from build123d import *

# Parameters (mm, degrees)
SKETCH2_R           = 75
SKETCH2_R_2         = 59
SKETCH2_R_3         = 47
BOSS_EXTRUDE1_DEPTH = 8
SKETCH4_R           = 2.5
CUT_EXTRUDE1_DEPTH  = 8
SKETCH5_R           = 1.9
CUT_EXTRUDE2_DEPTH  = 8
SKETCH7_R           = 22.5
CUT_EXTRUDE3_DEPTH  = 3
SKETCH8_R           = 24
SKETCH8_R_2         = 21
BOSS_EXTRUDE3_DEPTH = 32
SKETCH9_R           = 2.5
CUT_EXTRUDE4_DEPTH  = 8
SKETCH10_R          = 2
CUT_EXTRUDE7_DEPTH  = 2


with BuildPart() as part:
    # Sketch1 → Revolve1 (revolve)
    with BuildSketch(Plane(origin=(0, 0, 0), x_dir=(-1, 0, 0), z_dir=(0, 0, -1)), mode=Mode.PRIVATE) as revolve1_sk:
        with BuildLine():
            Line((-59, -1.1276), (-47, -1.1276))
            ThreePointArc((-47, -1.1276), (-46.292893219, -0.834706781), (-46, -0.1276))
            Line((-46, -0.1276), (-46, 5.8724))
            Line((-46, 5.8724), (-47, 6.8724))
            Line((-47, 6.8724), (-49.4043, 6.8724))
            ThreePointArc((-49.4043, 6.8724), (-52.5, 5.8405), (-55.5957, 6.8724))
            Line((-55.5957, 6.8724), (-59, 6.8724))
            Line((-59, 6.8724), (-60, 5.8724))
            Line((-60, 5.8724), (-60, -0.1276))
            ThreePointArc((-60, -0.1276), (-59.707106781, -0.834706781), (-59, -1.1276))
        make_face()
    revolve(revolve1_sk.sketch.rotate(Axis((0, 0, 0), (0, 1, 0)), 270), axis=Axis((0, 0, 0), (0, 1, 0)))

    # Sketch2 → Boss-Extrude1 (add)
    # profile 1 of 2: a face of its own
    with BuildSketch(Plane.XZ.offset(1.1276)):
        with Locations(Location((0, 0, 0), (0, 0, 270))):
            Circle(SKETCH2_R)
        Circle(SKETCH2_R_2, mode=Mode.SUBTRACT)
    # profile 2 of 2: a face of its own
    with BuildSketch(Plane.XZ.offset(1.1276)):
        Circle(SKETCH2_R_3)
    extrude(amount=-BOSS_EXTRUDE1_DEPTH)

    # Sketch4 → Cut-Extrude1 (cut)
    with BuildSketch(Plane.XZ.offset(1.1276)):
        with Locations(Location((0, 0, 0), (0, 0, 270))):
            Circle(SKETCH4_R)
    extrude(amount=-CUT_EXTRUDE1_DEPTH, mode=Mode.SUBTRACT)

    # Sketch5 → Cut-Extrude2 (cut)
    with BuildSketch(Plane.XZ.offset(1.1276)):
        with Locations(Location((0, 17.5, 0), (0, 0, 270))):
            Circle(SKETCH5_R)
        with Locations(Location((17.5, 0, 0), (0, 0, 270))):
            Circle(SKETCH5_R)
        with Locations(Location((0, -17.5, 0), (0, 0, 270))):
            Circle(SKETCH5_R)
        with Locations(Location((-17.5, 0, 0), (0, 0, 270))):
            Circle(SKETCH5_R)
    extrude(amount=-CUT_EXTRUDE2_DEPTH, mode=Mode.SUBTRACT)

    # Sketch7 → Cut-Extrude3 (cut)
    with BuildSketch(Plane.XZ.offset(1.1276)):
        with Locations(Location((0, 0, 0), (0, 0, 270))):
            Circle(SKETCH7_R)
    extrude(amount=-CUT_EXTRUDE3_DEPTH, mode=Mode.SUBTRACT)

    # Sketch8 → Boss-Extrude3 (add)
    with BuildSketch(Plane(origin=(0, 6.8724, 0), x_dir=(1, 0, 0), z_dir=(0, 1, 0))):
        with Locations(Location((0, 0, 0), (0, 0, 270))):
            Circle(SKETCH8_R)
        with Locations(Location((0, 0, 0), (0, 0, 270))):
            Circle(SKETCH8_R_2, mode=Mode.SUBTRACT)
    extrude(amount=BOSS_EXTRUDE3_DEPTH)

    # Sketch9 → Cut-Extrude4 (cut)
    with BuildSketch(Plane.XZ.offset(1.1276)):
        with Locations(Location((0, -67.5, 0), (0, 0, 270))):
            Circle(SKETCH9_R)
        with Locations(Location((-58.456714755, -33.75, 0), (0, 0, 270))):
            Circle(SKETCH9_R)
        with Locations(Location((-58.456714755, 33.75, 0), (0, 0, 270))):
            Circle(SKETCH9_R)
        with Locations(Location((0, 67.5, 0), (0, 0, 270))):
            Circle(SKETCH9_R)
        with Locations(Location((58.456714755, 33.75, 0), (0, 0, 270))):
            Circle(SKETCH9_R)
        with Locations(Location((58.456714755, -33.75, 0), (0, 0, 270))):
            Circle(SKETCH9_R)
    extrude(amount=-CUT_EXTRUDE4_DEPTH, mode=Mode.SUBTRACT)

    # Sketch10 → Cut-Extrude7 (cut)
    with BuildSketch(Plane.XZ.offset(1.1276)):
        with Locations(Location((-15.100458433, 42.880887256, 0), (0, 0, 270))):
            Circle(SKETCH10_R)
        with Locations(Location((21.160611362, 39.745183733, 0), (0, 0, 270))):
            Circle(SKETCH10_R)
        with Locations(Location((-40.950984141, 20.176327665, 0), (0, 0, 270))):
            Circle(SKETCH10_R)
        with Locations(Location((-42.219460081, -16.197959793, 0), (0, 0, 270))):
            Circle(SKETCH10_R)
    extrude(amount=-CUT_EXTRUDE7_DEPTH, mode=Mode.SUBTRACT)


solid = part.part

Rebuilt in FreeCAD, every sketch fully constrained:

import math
import FreeCAD as App
import Part
import Sketcher

doc = App.newDocument("Part")
body = doc.addObject("PartDesign::Body", "Body")

# Sketch on XY plane
sketch1 = body.newObject("Sketcher::SketchObject", "Sketch")
sketch1.AttachmentSupport = (doc.getObject("XY_Plane"), [""])
sketch1.MapMode = "FlatFace"
sketch1.addGeometry([
    Part.LineSegment(App.Vector(59, -1.1, 0), App.Vector(47, -1.1, 0)),  # 0
    Part.ArcOfCircle(Part.Circle(App.Vector(47, -0.1, 0), App.Vector(0, 0, 1), 1), math.radians(-180), math.radians(-90)),  # 1
    Part.LineSegment(App.Vector(46, -0.1, 0), App.Vector(46, 5.9, 0)),  # 2
    Part.LineSegment(App.Vector(46, 5.9, 0), App.Vector(47, 6.9, 0)),  # 3
    Part.LineSegment(App.Vector(47, 6.9, 0), App.Vector(49.4, 6.9, 0)),  # 4
    Part.ArcOfCircle(Part.Circle(App.Vector(52.5, 11, 0), App.Vector(0, 0, 1), 5.2), math.radians(-127), math.radians(-53)),  # 5
    Part.LineSegment(App.Vector(55.6, 6.9, 0), App.Vector(59, 6.9, 0)),  # 6
    Part.LineSegment(App.Vector(59, 6.9, 0), App.Vector(60, 5.9, 0)),  # 7
    Part.LineSegment(App.Vector(60, 5.9, 0), App.Vector(60, -0.1, 0)),  # 8
    Part.ArcOfCircle(Part.Circle(App.Vector(59, -0.1, 0), App.Vector(0, 0, 1), 1), math.radians(-90), math.radians(0)),  # 9
], False)
sketch1.addConstraint([
    Sketcher.Constraint("Tangent", 0, 2, 1, 2),
    Sketcher.Constraint("Tangent", 1, 1, 2, 1),
    Sketcher.Constraint("Coincident", 2, 2, 3, 1),
    Sketcher.Constraint("Coincident", 3, 2, 4, 1),
    Sketcher.Constraint("Coincident", 4, 2, 5, 1),
    Sketcher.Constraint("Coincident", 5, 2, 6, 1),
    Sketcher.Constraint("Coincident", 6, 2, 7, 1),
    Sketcher.Constraint("Coincident", 7, 2, 8, 1),
    Sketcher.Constraint("Tangent", 8, 2, 9, 2),
    Sketcher.Constraint("Tangent", 9, 1, 0, 1),
    Sketcher.Constraint("Horizontal", 0),
    Sketcher.Constraint("Vertical", 2),
    Sketcher.Constraint("Horizontal", 4),
    Sketcher.Constraint("Horizontal", 6),
    Sketcher.Constraint("Vertical", 8),
    Sketcher.Constraint("Equal", 1, 9),
    Sketcher.Constraint("Perpendicular", 3, 7),
    Sketcher.Constraint("Horizontal", 4, 2, 5, 2),
    Sketcher.Constraint("Horizontal", 2, 2, 7, 2),
    Sketcher.Constraint("Vertical", 0, 2, 3, 2),
    Sketcher.Constraint("Vertical", 9, 3, 6, 2),
    Sketcher.Constraint("Radius", 1, 1.0),
    Sketcher.Constraint("DistanceX", 0, 2, 0, 1, 12.0),
    Sketcher.Constraint("DistanceY", 2, 1, 2, 2, 6.0),
    Sketcher.Constraint("DistanceX", -1, 1, 1, 3, 47.0),
    Sketcher.Constraint("DistanceY", -1, 1, 5, 3, 11.0),
    Sketcher.Constraint("DistanceX", -1, 1, 5, 3, 52.5),
    Sketcher.Constraint("Radius", 5, 5.1595),
    Sketcher.Constraint("DistanceX", 4, 1, 4, 2, 2.4043),
])
revolution = body.newObject("PartDesign::Revolution", "Revolution")
revolution.Profile = sketch1
revolution.ReferenceAxis = (sketch1, ["V_Axis"])
revolution.Angle = 360

# Sketch on XZ plane
sketch2 = body.newObject("Sketcher::SketchObject", "Sketch001")
sketch2.AttachmentSupport = (doc.getObject("XZ_Plane"), [""])
sketch2.MapMode = "FlatFace"
sketch2.AttachmentOffset = App.Placement(App.Vector(0, 0, 1.1276), App.Rotation())
sketch2.addGeometry([
    Part.Circle(App.Vector(0, 0, 0), App.Vector(0, 0, 1), 75),
    Part.Circle(App.Vector(0, 0, 0), App.Vector(0, 0, 1), 59),
    Part.Circle(App.Vector(0, 0, 0), App.Vector(0, 0, 1), 47),
], False)
sketch2.addConstraint([
    Sketcher.Constraint("Coincident", 0, 3, -1, 1),
    Sketcher.Constraint("Coincident", 1, 3, -1, 1),
    Sketcher.Constraint("Coincident", 2, 3, -1, 1),
    Sketcher.Constraint("Diameter", 0, 150.0),
    Sketcher.Constraint("Diameter", 1, 118.0),
    Sketcher.Constraint("Diameter", 2, 94.0),
])
pad1 = body.newObject("PartDesign::Pad", "Pad")
pad1.Profile = sketch2
pad1.Length = 8
pad1.Reversed = True

# Sketch on XZ plane
sketch3 = body.newObject("Sketcher::SketchObject", "Sketch002")
sketch3.AttachmentSupport = (doc.getObject("XZ_Plane"), [""])
sketch3.MapMode = "FlatFace"
sketch3.AttachmentOffset = App.Placement(App.Vector(0, 0, 1.1276), App.Rotation())
sketch3.addGeometry(Part.Circle(App.Vector(0, 0, 0), App.Vector(0, 0, 1), 2.5), False)
sketch3.addConstraint([
    Sketcher.Constraint("Coincident", 0, 3, -1, 1),
    Sketcher.Constraint("Diameter", 0, 5.0),
])
pocket1 = body.newObject("PartDesign::Pocket", "Pocket")
pocket1.Profile = sketch3
pocket1.Length = 8

# Sketch on XZ plane
sketch4 = body.newObject("Sketcher::SketchObject", "Sketch003")
sketch4.AttachmentSupport = (doc.getObject("XZ_Plane"), [""])
sketch4.MapMode = "FlatFace"
sketch4.AttachmentOffset = App.Placement(App.Vector(0, 0, 1.1276), App.Rotation())
sketch4.addGeometry([
    Part.Circle(App.Vector(0, 17.5, 0), App.Vector(0, 0, 1), 1.9),
    Part.Circle(App.Vector(17.5, 0, 0), App.Vector(0, 0, 1), 1.9),
    Part.Circle(App.Vector(0, -17.5, 0), App.Vector(0, 0, 1), 1.9),
    Part.Circle(App.Vector(-17.5, 0, 0), App.Vector(0, 0, 1), 1.9),
], False)
sketch4.addConstraint([
    Sketcher.Constraint("Equal", 0, 1),
    Sketcher.Constraint("Equal", 1, 2),
    Sketcher.Constraint("Equal", 2, 3),
    Sketcher.Constraint("Symmetric", 0, 3, 2, 3, -1, 1),
    Sketcher.Constraint("Symmetric", 1, 3, 3, 3, -1, 1),
    Sketcher.Constraint("PointOnObject", 0, 3, -2),
    Sketcher.Constraint("PointOnObject", 1, 3, -1),
    Sketcher.Constraint("Diameter", 0, 3.8),
    Sketcher.Constraint("DistanceY", 2, 3, 0, 3, 35.0),
    Sketcher.Constraint("DistanceX", 3, 3, 1, 3, 35.0),
])
pocket2 = body.newObject("PartDesign::Pocket", "Pocket001")
pocket2.Profile = sketch4
pocket2.Length = 8

# Sketch on XZ plane
sketch5 = body.newObject("Sketcher::SketchObject", "Sketch004")
sketch5.AttachmentSupport = (doc.getObject("XZ_Plane"), [""])
sketch5.MapMode = "FlatFace"
sketch5.AttachmentOffset = App.Placement(App.Vector(0, 0, 1.1276), App.Rotation())
sketch5.addGeometry(Part.Circle(App.Vector(0, 0, 0), App.Vector(0, 0, 1), 22), False)
sketch5.addConstraint([
    Sketcher.Constraint("Coincident", 0, 3, -1, 1),
    Sketcher.Constraint("Diameter", 0, 45.0),
])
pocket3 = body.newObject("PartDesign::Pocket", "Pocket002")
pocket3.Profile = sketch5
pocket3.Length = 3

# Sketch on XZ plane
sketch6 = body.newObject("Sketcher::SketchObject", "Sketch005")
sketch6.AttachmentSupport = (doc.getObject("XZ_Plane"), [""])
sketch6.MapMode = "FlatFace"
sketch6.AttachmentOffset = App.Placement(App.Vector(0, 0, -6.8724), App.Rotation())
sketch6.addGeometry([
    Part.Circle(App.Vector(0, 0, 0), App.Vector(0, 0, 1), 24),
    Part.Circle(App.Vector(0, 0, 0), App.Vector(0, 0, 1), 21),
], False)
sketch6.addConstraint([
    Sketcher.Constraint("Coincident", 0, 3, -1, 1),
    Sketcher.Constraint("Coincident", 1, 3, -1, 1),
    Sketcher.Constraint("Diameter", 0, 48.0),
    Sketcher.Constraint("Diameter", 1, 42.0),
])
pad2 = body.newObject("PartDesign::Pad", "Pad001")
pad2.Profile = sketch6
pad2.Length = 32
pad2.Reversed = True

# Sketch on XZ plane
sketch7 = body.newObject("Sketcher::SketchObject", "Sketch006")
sketch7.AttachmentSupport = (doc.getObject("XZ_Plane"), [""])
sketch7.MapMode = "FlatFace"
sketch7.AttachmentOffset = App.Placement(App.Vector(0, 0, 1.1276), App.Rotation())
sketch7.addGeometry([
    Part.Circle(App.Vector(0, -67.5, 0), App.Vector(0, 0, 1), 2.5),  # 0
    Part.Circle(App.Vector(-58.5, -33.8, 0), App.Vector(0, 0, 1), 2.5),  # 1
    Part.Circle(App.Vector(-58.5, 33.8, 0), App.Vector(0, 0, 1), 2.5),  # 2
    Part.Circle(App.Vector(0, 67.5, 0), App.Vector(0, 0, 1), 2.5),  # 3
    Part.Circle(App.Vector(58.5, 33.8, 0), App.Vector(0, 0, 1), 2.5),  # 4
    Part.Circle(App.Vector(58.5, -33.8, 0), App.Vector(0, 0, 1), 2.5),  # 5
], False)
sketch7.addConstraint([
    Sketcher.Constraint("Equal", 0, 1),
    Sketcher.Constraint("Equal", 1, 2),
    Sketcher.Constraint("Equal", 2, 3),
    Sketcher.Constraint("Equal", 3, 4),
    Sketcher.Constraint("Equal", 4, 5),
    Sketcher.Constraint("Symmetric", 0, 3, 3, 3, -1, 1),
    Sketcher.Constraint("Symmetric", 1, 3, 4, 3, -1, 1),
    Sketcher.Constraint("Symmetric", 2, 3, 5, 3, -1, 1),
    Sketcher.Constraint("Symmetric", 2, 3, 4, 3, -2),
    Sketcher.Constraint("PointOnObject", 0, 3, -2),
    Sketcher.Constraint("Diameter", 0, 5.0),
    Sketcher.Constraint("DistanceY", 0, 3, 3, 3, 135.0),
    Sketcher.Constraint("DistanceY", 1, 3, 2, 3, 67.5),
    Sketcher.Constraint("DistanceX", 2, 3, 4, 3, 116.91343),
])
pocket4 = body.newObject("PartDesign::Pocket", "Pocket003")
pocket4.Profile = sketch7
pocket4.Length = 8

# Sketch on XZ plane
sketch8 = body.newObject("Sketcher::SketchObject", "Sketch007")
sketch8.AttachmentSupport = (doc.getObject("XZ_Plane"), [""])
sketch8.MapMode = "FlatFace"
sketch8.AttachmentOffset = App.Placement(App.Vector(0, 0, 1.1276), App.Rotation())
sketch8.addGeometry([
    Part.Circle(App.Vector(-15.1, 42.9, 0), App.Vector(0, 0, 1), 2),
    Part.Circle(App.Vector(21.2, 39.7, 0), App.Vector(0, 0, 1), 2),
    Part.Circle(App.Vector(-41, 20.2, 0), App.Vector(0, 0, 1), 2),
    Part.Circle(App.Vector(-42.2, -16.2, 0), App.Vector(0, 0, 1), 2),
], False)
sketch8.addConstraint([
    Sketcher.Constraint("Equal", 0, 1),
    Sketcher.Constraint("Equal", 1, 2),
    Sketcher.Constraint("Equal", 2, 3),
    Sketcher.Constraint("Diameter", 0, 4.0),
    Sketcher.Constraint("DistanceX", 3, 3, 0, 3, 27.119002),
    Sketcher.Constraint("DistanceX", 0, 3, -1, 1, 15.100458),
    Sketcher.Constraint("DistanceX", -1, 1, 1, 3, 21.160611),
    Sketcher.Constraint("DistanceY", 3, 3, -1, 1, 16.19796),
    Sketcher.Constraint("DistanceY", 2, 3, 0, 3, 22.70456),
    Sketcher.Constraint("DistanceY", -1, 1, 0, 3, 42.880887),
    Sketcher.Constraint("DistanceY", -1, 1, 1, 3, 39.745184),
    Sketcher.Constraint("DistanceX", 2, 3, -1, 1, 40.950984),
])
pocket5 = body.newObject("PartDesign::Pocket", "Pocket004")
pocket5.Profile = sketch8
pocket5.Length = 2

doc.recompute()
